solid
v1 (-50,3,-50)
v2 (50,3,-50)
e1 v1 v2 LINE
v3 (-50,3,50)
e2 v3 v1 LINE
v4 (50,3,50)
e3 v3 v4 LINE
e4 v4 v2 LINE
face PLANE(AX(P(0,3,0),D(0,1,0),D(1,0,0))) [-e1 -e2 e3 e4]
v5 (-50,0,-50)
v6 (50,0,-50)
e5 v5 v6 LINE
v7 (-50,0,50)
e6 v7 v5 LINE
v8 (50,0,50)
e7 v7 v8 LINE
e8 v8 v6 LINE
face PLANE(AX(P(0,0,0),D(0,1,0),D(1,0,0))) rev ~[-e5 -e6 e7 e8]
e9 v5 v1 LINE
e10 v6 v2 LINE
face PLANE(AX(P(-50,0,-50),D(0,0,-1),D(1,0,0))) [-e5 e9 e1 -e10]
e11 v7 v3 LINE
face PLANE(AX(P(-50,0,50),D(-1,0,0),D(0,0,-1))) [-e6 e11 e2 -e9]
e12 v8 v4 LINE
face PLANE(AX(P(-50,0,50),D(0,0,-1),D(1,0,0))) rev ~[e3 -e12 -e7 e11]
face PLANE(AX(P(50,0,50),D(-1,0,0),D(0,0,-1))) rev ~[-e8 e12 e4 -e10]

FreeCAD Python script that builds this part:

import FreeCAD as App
import Part
import Sketcher
from FreeCAD import Vector


def add_polygon(sketch, points):
    """Adds a closed chain of lines whose ends are joined by coincident constraints."""
    first, n = sketch.GeometryCount, len(points)
    for a, b in zip(points, points[1:] + points[:1]):
        sketch.addGeometry(Part.LineSegment(App.Vector(*a, 0), App.Vector(*b, 0)), False)
    for i in range(n):
        sketch.addConstraint(Sketcher.Constraint("Coincident", first + i, 2, first + (i + 1) % n, 1))

doc = App.newDocument("Part")
body = doc.addObject("PartDesign::Body", "Body")

# Sketch on XZ plane
sketch1 = doc.addObject("Sketcher::SketchObject", "Sketch")
body.addObject(sketch1)
sketch1.AttachmentSupport = (doc.XZ_Plane, [""])
sketch1.MapMode = "FlatFace"
add_polygon(sketch1, [(-50, -50), (-50, 50), (50, 50), (50, -50)])  # lines 0-3
sketch1.addConstraint(Sketcher.Constraint("Vertical", 0))
sketch1.addConstraint(Sketcher.Constraint("Horizontal", 1))
sketch1.addConstraint(Sketcher.Constraint("Vertical", 2))
sketch1.addConstraint(Sketcher.Constraint("Horizontal", 3))
sketch1.addConstraint(Sketcher.Constraint("Symmetric", 0, 2, 2, 2, -1, 1))
sketch1.addConstraint(Sketcher.Constraint("Equal", 3, 0))
sketch1.addConstraint(Sketcher.Constraint("DistanceX", 1, 1, 1, 2, 100.0))
pad1 = doc.addObject("PartDesign::Pad", "Pad")
body.addObject(pad1)
pad1.Profile = sketch1
pad1.Length = 3
pad1.Reversed = True

doc.recompute()
